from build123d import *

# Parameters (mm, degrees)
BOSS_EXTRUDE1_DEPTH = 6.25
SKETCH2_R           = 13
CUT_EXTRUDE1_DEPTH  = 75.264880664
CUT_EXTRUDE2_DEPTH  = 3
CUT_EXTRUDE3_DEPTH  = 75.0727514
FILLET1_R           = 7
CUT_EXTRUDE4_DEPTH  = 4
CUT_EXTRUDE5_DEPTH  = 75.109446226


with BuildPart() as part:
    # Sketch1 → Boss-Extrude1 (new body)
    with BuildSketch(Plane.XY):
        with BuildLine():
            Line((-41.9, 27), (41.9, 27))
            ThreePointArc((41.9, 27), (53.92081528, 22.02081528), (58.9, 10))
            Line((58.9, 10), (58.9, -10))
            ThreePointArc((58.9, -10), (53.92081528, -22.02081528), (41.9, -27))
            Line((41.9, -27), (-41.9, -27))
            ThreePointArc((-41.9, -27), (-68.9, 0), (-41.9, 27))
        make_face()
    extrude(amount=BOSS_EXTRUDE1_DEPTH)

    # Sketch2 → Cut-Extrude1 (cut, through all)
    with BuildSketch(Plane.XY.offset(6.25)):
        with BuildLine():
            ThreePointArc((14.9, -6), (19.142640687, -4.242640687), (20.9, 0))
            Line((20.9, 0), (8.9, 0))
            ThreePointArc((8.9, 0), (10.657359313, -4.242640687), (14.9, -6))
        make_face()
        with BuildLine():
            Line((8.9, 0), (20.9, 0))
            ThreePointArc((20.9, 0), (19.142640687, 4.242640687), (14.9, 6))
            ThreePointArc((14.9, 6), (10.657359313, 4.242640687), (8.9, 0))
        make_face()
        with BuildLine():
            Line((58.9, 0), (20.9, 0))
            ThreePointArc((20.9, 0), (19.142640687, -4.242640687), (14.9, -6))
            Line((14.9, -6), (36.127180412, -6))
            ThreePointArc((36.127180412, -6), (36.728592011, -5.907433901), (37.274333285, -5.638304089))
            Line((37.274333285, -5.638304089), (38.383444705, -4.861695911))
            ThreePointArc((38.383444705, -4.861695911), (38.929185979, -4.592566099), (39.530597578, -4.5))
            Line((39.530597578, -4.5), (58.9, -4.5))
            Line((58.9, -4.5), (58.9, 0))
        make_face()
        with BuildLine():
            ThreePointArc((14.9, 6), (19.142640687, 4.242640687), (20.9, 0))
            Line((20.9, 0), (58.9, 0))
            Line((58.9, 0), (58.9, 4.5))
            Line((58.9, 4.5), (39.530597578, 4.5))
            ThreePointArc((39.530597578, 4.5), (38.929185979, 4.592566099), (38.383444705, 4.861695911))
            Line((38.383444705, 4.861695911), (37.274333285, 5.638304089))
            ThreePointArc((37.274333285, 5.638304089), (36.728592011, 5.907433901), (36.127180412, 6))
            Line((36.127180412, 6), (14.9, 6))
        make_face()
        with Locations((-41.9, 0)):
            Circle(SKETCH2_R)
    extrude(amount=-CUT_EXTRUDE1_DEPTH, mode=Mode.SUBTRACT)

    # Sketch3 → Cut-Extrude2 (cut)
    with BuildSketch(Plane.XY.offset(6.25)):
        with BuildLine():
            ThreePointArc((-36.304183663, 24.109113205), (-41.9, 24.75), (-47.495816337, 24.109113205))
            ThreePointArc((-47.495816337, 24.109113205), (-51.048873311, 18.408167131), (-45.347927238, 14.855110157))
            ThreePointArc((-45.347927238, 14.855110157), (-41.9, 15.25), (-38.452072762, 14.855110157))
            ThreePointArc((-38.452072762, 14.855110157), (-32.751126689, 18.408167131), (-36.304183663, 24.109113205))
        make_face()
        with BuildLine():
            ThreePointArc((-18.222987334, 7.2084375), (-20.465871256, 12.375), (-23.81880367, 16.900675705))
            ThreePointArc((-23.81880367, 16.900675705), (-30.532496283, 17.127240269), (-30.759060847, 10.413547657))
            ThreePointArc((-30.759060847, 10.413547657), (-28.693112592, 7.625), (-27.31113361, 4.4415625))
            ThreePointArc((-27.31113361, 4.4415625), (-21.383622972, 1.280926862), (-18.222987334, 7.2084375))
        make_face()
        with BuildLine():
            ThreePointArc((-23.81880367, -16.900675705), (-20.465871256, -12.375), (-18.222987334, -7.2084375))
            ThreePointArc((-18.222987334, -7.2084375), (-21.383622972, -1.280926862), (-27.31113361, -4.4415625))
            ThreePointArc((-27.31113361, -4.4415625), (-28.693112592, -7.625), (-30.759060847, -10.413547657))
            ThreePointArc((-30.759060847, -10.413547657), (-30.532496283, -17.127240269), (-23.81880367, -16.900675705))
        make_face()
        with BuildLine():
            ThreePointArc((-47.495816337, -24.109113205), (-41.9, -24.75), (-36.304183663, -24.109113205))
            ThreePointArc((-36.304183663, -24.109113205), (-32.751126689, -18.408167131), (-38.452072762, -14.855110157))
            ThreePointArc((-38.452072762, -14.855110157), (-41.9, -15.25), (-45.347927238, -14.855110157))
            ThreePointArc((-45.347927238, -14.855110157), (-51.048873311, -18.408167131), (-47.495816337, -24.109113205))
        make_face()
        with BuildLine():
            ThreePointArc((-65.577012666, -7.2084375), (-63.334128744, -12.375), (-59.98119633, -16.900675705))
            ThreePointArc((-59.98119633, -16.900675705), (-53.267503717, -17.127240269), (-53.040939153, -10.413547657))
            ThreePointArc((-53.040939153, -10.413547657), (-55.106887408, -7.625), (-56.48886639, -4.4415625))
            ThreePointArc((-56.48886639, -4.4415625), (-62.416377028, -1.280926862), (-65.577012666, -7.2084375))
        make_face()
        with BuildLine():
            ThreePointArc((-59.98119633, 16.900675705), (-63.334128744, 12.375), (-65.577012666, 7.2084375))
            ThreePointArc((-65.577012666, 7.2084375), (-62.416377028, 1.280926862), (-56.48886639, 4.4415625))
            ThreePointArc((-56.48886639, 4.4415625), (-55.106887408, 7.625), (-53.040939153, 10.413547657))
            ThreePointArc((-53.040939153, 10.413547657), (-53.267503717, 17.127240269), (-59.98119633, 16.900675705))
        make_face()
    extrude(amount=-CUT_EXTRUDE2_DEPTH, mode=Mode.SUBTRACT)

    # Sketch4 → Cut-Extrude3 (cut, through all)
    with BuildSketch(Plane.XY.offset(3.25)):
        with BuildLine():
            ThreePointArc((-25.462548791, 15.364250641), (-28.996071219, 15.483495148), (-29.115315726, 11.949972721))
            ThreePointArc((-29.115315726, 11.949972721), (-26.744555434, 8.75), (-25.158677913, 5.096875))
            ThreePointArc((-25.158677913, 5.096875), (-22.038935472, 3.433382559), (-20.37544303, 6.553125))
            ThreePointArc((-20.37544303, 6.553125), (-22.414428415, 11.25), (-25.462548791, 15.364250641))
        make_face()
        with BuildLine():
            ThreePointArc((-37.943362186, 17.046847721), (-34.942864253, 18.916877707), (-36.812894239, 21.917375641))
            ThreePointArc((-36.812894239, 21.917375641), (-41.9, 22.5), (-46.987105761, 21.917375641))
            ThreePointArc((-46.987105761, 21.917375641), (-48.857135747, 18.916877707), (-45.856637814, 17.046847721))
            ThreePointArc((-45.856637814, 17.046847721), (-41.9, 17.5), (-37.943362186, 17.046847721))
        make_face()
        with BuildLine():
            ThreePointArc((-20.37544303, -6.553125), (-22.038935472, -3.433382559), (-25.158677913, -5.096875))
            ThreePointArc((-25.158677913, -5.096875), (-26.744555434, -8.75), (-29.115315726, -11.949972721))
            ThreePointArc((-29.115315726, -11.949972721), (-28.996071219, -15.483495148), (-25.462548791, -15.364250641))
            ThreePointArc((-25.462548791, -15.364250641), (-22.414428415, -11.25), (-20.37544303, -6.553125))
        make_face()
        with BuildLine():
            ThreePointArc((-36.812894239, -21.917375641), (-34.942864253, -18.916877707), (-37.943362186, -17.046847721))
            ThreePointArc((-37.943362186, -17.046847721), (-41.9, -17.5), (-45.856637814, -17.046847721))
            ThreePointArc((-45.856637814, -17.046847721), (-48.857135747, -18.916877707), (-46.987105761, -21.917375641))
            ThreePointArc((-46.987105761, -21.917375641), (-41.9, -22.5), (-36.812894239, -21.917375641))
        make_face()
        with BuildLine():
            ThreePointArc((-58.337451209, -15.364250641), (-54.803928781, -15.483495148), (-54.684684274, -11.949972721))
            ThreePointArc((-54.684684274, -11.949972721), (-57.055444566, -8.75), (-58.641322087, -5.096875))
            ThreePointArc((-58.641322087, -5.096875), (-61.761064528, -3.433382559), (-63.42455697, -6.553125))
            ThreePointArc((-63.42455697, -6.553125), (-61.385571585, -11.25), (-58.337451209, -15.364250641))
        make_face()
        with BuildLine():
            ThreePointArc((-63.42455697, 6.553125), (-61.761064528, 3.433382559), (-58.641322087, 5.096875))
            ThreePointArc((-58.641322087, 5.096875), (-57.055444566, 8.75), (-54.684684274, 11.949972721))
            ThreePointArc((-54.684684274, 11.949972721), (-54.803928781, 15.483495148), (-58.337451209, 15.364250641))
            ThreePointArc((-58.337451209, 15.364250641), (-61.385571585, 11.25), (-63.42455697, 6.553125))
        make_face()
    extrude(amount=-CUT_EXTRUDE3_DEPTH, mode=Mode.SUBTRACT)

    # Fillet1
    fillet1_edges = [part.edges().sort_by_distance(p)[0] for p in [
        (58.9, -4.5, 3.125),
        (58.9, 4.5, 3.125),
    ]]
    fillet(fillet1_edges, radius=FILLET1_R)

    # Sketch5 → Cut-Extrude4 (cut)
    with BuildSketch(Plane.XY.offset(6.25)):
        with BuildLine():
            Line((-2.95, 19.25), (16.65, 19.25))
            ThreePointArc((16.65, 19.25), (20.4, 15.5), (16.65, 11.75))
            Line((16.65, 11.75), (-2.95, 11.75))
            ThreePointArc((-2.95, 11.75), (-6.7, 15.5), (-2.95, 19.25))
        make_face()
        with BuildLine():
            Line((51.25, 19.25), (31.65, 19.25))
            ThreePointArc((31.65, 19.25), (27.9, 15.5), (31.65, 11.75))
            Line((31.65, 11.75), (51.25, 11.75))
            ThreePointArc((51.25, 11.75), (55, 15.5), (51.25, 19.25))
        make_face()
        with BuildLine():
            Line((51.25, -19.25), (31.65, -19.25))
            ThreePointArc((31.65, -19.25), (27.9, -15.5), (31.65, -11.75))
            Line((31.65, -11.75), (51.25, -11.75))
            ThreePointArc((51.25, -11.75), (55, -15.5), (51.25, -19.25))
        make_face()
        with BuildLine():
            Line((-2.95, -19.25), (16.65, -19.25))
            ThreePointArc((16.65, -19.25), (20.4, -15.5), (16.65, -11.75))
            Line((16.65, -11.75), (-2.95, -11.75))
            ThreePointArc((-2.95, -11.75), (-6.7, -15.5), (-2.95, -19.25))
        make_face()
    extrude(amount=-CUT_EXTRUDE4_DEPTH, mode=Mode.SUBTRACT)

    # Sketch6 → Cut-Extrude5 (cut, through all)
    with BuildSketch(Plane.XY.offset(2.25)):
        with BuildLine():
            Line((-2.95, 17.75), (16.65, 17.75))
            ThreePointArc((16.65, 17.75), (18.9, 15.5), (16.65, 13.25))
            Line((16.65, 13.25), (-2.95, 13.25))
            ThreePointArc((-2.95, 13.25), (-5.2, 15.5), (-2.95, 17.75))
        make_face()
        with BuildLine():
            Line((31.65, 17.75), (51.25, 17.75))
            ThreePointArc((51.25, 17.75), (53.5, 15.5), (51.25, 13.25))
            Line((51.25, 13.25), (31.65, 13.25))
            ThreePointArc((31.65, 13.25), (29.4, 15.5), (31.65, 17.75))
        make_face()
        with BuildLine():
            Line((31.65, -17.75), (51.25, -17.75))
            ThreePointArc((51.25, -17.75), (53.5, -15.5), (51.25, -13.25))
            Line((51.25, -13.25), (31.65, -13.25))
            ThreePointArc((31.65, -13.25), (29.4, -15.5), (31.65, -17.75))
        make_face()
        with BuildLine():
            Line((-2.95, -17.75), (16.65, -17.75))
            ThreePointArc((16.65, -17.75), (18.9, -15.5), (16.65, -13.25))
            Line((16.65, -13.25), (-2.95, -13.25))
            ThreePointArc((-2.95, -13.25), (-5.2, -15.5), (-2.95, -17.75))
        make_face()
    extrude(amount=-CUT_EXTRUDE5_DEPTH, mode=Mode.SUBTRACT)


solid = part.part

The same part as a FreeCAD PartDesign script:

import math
import FreeCAD as App
import Part
import Sketcher
from FreeCAD import Vector
Q = App.Units.Quantity


def edges_at(feature, points):
    """Names of the edges that pass closest to the given points."""
    edges = feature.Shape.Edges
    near = lambda p: min(range(len(edges)), key=lambda i: edges[i].distToShape(Part.Vertex(*p))[0])
    return sorted({f"Edge{near(p) + 1}" for p in points})

doc = App.newDocument("Part")
body = doc.addObject("PartDesign::Body", "Body")

# Sketch on XY plane
sketch1 = body.newObject("Sketcher::SketchObject", "Sketch")
sketch1.AttachmentSupport = (doc.getObject("XY_Plane"), [""])
sketch1.MapMode = "FlatFace"
sketch1.addGeometry([
    Part.LineSegment(Vector(42, 27, 0), Vector(-42, 27, 0)),  # 0
    Part.ArcOfCircle(Part.Circle(Vector(-42, 0, 0), Vector(0, 0, 1), 27), math.radians(90), math.radians(270)),  # 1
    Part.LineSegment(Vector(-42, -27, 0), Vector(42, -27, 0)),  # 2
    Part.ArcOfCircle(Part.Circle(Vector(42, -10, 0), Vector(0, 0, 1), 17), math.radians(-90), math.radians(0)),  # 3
    Part.LineSegment(Vector(59, -10, 0), Vector(59, 10, 0)),  # 4
    Part.ArcOfCircle(Part.Circle(Vector(42, 10, 0), Vector(0, 0, 1), 17), math.radians(0), math.radians(90)),  # 5
], False)
sketch1.addConstraint([
    Sketcher.Constraint("Tangent", 0, 2, 1, 1),
    Sketcher.Constraint("Tangent", 1, 2, 2, 1),
    Sketcher.Constraint("Tangent", 2, 2, 3, 1),
    Sketcher.Constraint("Tangent", 3, 2, 4, 1),
    Sketcher.Constraint("Tangent", 4, 2, 5, 1),
    Sketcher.Constraint("Tangent", 5, 2, 0, 1),
    Sketcher.Constraint("Horizontal", 0),
    Sketcher.Constraint("Horizontal", 2),
    Sketcher.Constraint("Vertical", 4),
    Sketcher.Constraint("Equal", 3, 5),
    Sketcher.Constraint("Symmetric", 0, 2, 2, 2, -1, 1),
    Sketcher.Constraint("Radius", 1, 27.0),
    Sketcher.Constraint("Radius", 3, 17.0),
    Sketcher.Constraint("DistanceX", 0, 2, 0, 1, 83.8),
])
pad1 = body.newObject("PartDesign::Pad", "Pad")
pad1.Profile = sketch1
pad1.Length = 6.25

# Sketch on XY plane
sketch2 = body.newObject("Sketcher::SketchObject", "Sketch001")
sketch2.AttachmentSupport = (doc.getObject("XY_Plane"), [""])
sketch2.MapMode = "FlatFace"
sketch2.AttachmentOffset = App.Placement(Vector(0, 0, 6.25), App.Rotation())
sketch2.addGeometry([
    Part.ArcOfCircle(Part.Circle(Vector(14.9, 0, 0), Vector(0, 0, 1), 6), math.radians(90), math.radians(180)),  # 0
    Part.ArcOfCircle(Part.Circle(Vector(14.9, 0, 0), Vector(0, 0, 1), 6), math.radians(180), math.radians(270)),  # 1
    Part.LineSegment(Vector(14.9, -6, 0), Vector(36.1, -6, 0)),  # 2
    Part.ArcOfCircle(Part.Circle(Vector(36.1, -4, 0), Vector(0, 0, 1), 2), math.radians(-90), math.radians(-55)),  # 3
    Part.LineSegment(Vector(37.3, -5.6, 0), Vector(38.4, -4.9, 0)),  # 4
    Part.ArcOfCircle(Part.Circle(Vector(39.5, -6.5, 0), Vector(0, 0, 1), 2), math.radians(90), math.radians(125)),  # 5
    Part.LineSegment(Vector(39.5, -4.5, 0), Vector(58.9, -4.5, 0)),  # 6
    Part.LineSegment(Vector(58.9, -4.5, 0), Vector(58.9, 4.5, 0)),  # 7
    Part.LineSegment(Vector(58.9, 4.5, 0), Vector(39.5, 4.5, 0)),  # 8
    Part.ArcOfCircle(Part.Circle(Vector(39.5, 6.5, 0), Vector(0, 0, 1), 2), math.radians(-125), math.radians(-90)),  # 9
    Part.LineSegment(Vector(38.4, 4.9, 0), Vector(37.3, 5.6, 0)),  # 10
    Part.ArcOfCircle(Part.Circle(Vector(36.1, 4, 0), Vector(0, 0, 1), 2), math.radians(55), math.radians(90)),  # 11
    Part.LineSegment(Vector(36.1, 6, 0), Vector(14.9, 6, 0)),  # 12
    Part.Circle(Vector(-41.9, 0, 0), Vector(0, 0, 1), 13),  # 13
], False)
sketch2.addConstraint([
    Sketcher.Constraint("Tangent", 0, 2, 1, 1),
    Sketcher.Constraint("Tangent", 1, 2, 2, 1),
    Sketcher.Constraint("Tangent", 2, 2, 3, 1),
    Sketcher.Constraint("Tangent", 3, 2, 4, 1),
    Sketcher.Constraint("Tangent", 4, 2, 5, 2),
    Sketcher.Constraint("Tangent", 5, 1, 6, 1),
    Sketcher.Constraint("Coincident", 6, 2, 7, 1),
    Sketcher.Constraint("Coincident", 7, 2, 8, 1),
    Sketcher.Constraint("Tangent", 8, 2, 9, 2),
    Sketcher.Constraint("Tangent", 9, 1, 10, 1),
    Sketcher.Constraint("Tangent", 10, 2, 11, 1),
    Sketcher.Constraint("Tangent", 11, 2, 12, 1),
    Sketcher.Constraint("Tangent", 12, 2, 0, 1),
    Sketcher.Constraint("Horizontal", 2),
    Sketcher.Constraint("Horizontal", 6),
    Sketcher.Constraint("Vertical", 7),
    Sketcher.Constraint("Horizontal", 8),
    Sketcher.Constraint("Horizontal", 12),
    Sketcher.Constraint("Equal", 0, 1),
    Sketcher.Constraint("Equal", 3, 5),
    Sketcher.Constraint("Equal", 5, 9),
    Sketcher.Constraint("Equal", 9, 11),
    Sketcher.Constraint("Symmetric", 5, 3, 9, 3, -1),
    Sketcher.Constraint("Symmetric", 3, 3, 11, 3, -1),
    Sketcher.Constraint("PointOnObject", 13, 3, -1),
    Sketcher.Constraint("PointOnObject", 0, 2, -1),
    Sketcher.Constraint("Diameter", 13, 26.0),
    Sketcher.Constraint("Radius", 0, 6.0),
    Sketcher.Constraint("Radius", 3, 2.0),
    Sketcher.Constraint("DistanceY", 7, 1, 7, 2, 9.0),
    Sketcher.Constraint("Angle", 4, Q("35 deg")),
    Sketcher.Constraint("DistanceX", -1, 1, 0, 3, 14.9),
    Sketcher.Constraint("DistanceX", 13, 3, -1, 1, 41.9),
    Sketcher.Constraint("DistanceX", -1, 1, 6, 2, 58.9),
    Sketcher.Constraint("DistanceX", 2, 1, 2, 2, 21.22718),
])
pocket1 = body.newObject("PartDesign::Pocket", "Pocket")
pocket1.Profile = sketch2
pocket1.Type = "ThroughAll"

# Sketch on XY plane
sketch3 = body.newObject("Sketcher::SketchObject", "Sketch002")
sketch3.AttachmentSupport = (doc.getObject("XY_Plane"), [""])
sketch3.MapMode = "FlatFace"
sketch3.AttachmentOffset = App.Placement(Vector(0, 0, 6.25), App.Rotation())
sketch3.addGeometry([
    Part.ArcOfCircle(Part.Circle(Vector(-41.9, 0, 0), Vector(0, 0, 1), 24.8), math.radians(77), math.radians(103)),  # 0
    Part.ArcOfCircle(Part.Circle(Vector(-46.4, 19.5, 0), Vector(0, 0, 1), 4.8), math.radians(103), math.radians(283)),  # 1
    Part.ArcOfCircle(Part.Circle(Vector(-41.9, 0, 0), Vector(0, 0, 1), 15.3), math.radians(77), math.radians(103)),  # 2
    Part.ArcOfCircle(Part.Circle(Vector(-37.4, 19.5, 0), Vector(0, 0, 1), 4.8), math.radians(-103), math.radians(77)),  # 3
    Part.ArcOfCircle(Part.Circle(Vector(-41.9, 0, 0), Vector(0, 0, 1), 24.7), math.radians(17), math.radians(43)),  # 4
    Part.ArcOfCircle(Part.Circle(Vector(-27.3, 13.7, 0), Vector(0, 0, 1), 4.8), math.radians(43), math.radians(223)),  # 5
    Part.ArcOfCircle(Part.Circle(Vector(-41.9, 0, 0), Vector(0, 0, 1), 15.2), math.radians(17), math.radians(43)),  # 6
    Part.ArcOfCircle(Part.Circle(Vector(-22.8, 5.8, 0), Vector(0, 0, 1), 4.8), math.radians(-163), math.radians(17)),  # 7
    Part.ArcOfCircle(Part.Circle(Vector(-41.9, 0, 0), Vector(0, 0, 1), 24.7), math.radians(-43), math.radians(-17)),  # 8
    Part.ArcOfCircle(Part.Circle(Vector(-22.8, -5.8, 0), Vector(0, 0, 1), 4.8), math.radians(-17), math.radians(163)),  # 9
    Part.ArcOfCircle(Part.Circle(Vector(-41.9, 0, 0), Vector(0, 0, 1), 15.2), math.radians(-43), math.radians(-17)),  # 10
    Part.ArcOfCircle(Part.Circle(Vector(-27.3, -13.7, 0), Vector(0, 0, 1), 4.8), math.radians(137), math.radians(317)),  # 11
    Part.ArcOfCircle(Part.Circle(Vector(-41.9, 0, 0), Vector(0, 0, 1), 24.8), math.radians(-103), math.radians(-77)),  # 12
    Part.ArcOfCircle(Part.Circle(Vector(-37.4, -19.5, 0), Vector(0, 0, 1), 4.8), math.radians(-77), math.radians(103)),  # 13
    Part.ArcOfCircle(Part.Circle(Vector(-41.9, 0, 0), Vector(0, 0, 1), 15.3), math.radians(-103), math.radians(-77)),  # 14
    Part.ArcOfCircle(Part.Circle(Vector(-46.4, -19.5, 0), Vector(0, 0, 1), 4.8), math.radians(77), math.radians(257)),  # 15
    Part.ArcOfCircle(Part.Circle(Vector(-41.9, 0, 0), Vector(0, 0, 1), 24.7), math.radians(-163), math.radians(-137)),  # 16
    Part.ArcOfCircle(Part.Circle(Vector(-56.5, -13.7, 0), Vector(0, 0, 1), 4.8), math.radians(-137), math.radians(43)),  # 17
    Part.ArcOfCircle(Part.Circle(Vector(-41.9, 0, 0), Vector(0, 0, 1), 15.2), math.radians(-163), math.radians(-137)),  # 18
    Part.ArcOfCircle(Part.Circle(Vector(-61, -5.8, 0), Vector(0, 0, 1), 4.8), math.radians(17), math.radians(197)),  # 19
    Part.ArcOfCircle(Part.Circle(Vector(-41.9, 0, 0), Vector(0, 0, 1), 24.7), math.radians(137), math.radians(163)),  # 20
    Part.ArcOfCircle(Part.Circle(Vector(-61, 5.8, 0), Vector(0, 0, 1), 4.8), math.radians(163), math.radians(343)),  # 21
    Part.ArcOfCircle(Part.Circle(Vector(-41.9, 0, 0), Vector(0, 0, 1), 15.2), math.radians(137), math.radians(163)),  # 22
    Part.ArcOfCircle(Part.Circle(Vector(-56.5, 13.7, 0), Vector(0, 0, 1), 4.8), math.radians(-43), math.radians(137)),  # 23
], False)
sketch3.addConstraint([
    Sketcher.Constraint("Tangent", 0, 2, 1, 1),
    Sketcher.Constraint("Tangent", 1, 2, 2, 2),
    Sketcher.Constraint("Tangent", 2, 1, 3, 1),
    Sketcher.Constraint("Tangent", 3, 2, 0, 1),
    Sketcher.Constraint("Tangent", 4, 2, 5, 1),
    Sketcher.Constraint("Tangent", 5, 2, 6, 2),
    Sketcher.Constraint("Tangent", 6, 1, 7, 1),
    Sketcher.Constraint("Tangent", 7, 2, 4, 1),
    Sketcher.Constraint("Tangent", 8, 2, 9, 1),
    Sketcher.Constraint("Tangent", 9, 2, 10, 2),
    Sketcher.Constraint("Tangent", 10, 1, 11, 1),
    Sketcher.Constraint("Tangent", 11, 2, 8, 1),
    Sketcher.Constraint("Tangent", 12, 2, 13, 1),
    Sketcher.Constraint("Tangent", 13, 2, 14, 2),
    Sketcher.Constraint("Tangent", 14, 1, 15, 1),
    Sketcher.Constraint("Tangent", 15, 2, 12, 1),
    Sketcher.Constraint("Tangent", 16, 2, 17, 1),
    Sketcher.Constraint("Tangent", 17, 2, 18, 2),
    Sketcher.Constraint("Tangent", 18, 1, 19, 1),
    Sketcher.Constraint("Tangent", 19, 2, 16, 1),
    Sketcher.Constraint("Tangent", 20, 2, 21, 1),
    Sketcher.Constraint("Tangent", 21, 2, 22, 2),
    Sketcher.Constraint("Tangent", 22, 1, 23, 1),
    Sketcher.Constraint("Tangent", 23, 2, 20, 1),
    Sketcher.Constraint("Coincident", 2, 3, 0, 3),
    Sketcher.Constraint("Coincident", 4, 3, 0, 3),
    Sketcher.Constraint("Coincident", 6, 3, 0, 3),
    Sketcher.Constraint("Coincident", 8, 3, 0, 3),
    Sketcher.Constraint("Coincident", 10, 3, 0, 3),
    Sketcher.Constraint("Coincident", 12, 3, 0, 3),
    Sketcher.Constraint("Coincident", 14, 3, 0, 3),
    Sketcher.Constraint("Coincident", 16, 3, 0, 3),
    Sketcher.Constraint("Coincident", 18, 3, 0, 3),
    Sketcher.Constraint("Coincident", 20, 3, 0, 3),
    Sketcher.Constraint("Coincident", 22, 3, 0, 3),
    Sketcher.Constraint("Equal", 0, 4),
    Sketcher.Constraint("Equal", 3, 5),
    Sketcher.Constraint("Equal", 4, 8),
    Sketcher.Constraint("Equal", 7, 9),
    Sketcher.Constraint("Equal", 8, 12),
    Sketcher.Constraint("Equal", 11, 13),
    Sketcher.Constraint("Equal", 12, 16),
    Sketcher.Constraint("Equal", 15, 17),
    Sketcher.Constraint("Equal", 16, 20),
    Sketcher.Constraint("Equal", 19, 21),
    Sketcher.Constraint("Symmetric", 7, 3, 9, 3, -1),
    Sketcher.Constraint("Horizontal", 1, 3, 3, 3),
    Sketcher.Constraint("Horizontal", 13, 3, 15, 3),
    Sketcher.Constraint("Horizontal", 11, 3, 17, 3),
    Sketcher.Constraint("Horizontal", 9, 3, 19, 3),
    Sketcher.Constraint("Horizontal", 7, 3, 21, 3),
    Sketcher.Constraint("Horizontal", 5, 3, 23, 3),
    Sketcher.Constraint("Vertical", 5, 3, 11, 3),
    Sketcher.Constraint("Vertical", 3, 3, 13, 3),
    Sketcher.Constraint("Radius", 0, 24.75),
    Sketcher.Constraint("Radius", 1, 4.75),
    Sketcher.Constraint("DistanceX", 0, 3, -1, 1, 41.9),
    Sketcher.Constraint("DistanceY", 9, 3, 7, 3, 11.65),
    Sketcher.Constraint("DistanceY", 5, 3, 3, 3, 5.825),
    Sketcher.Constraint("DistanceY", 1, 3, 0, 2, 4.627002),
])
pocket2 = body.newObject("PartDesign::Pocket", "Pocket001")
pocket2.Profile = sketch3
pocket2.Length = 3

# Sketch on XY plane
sketch4 = body.newObject("Sketcher::SketchObject", "Sketch003")
sketch4.AttachmentSupport = (doc.getObject("XY_Plane"), [""])
sketch4.MapMode = "FlatFace"
sketch4.AttachmentOffset = App.Placement(Vector(0, 0, 3.25), App.Rotation())
sketch4.addGeometry([
    Part.ArcOfCircle(Part.Circle(Vector(-27.3, 13.7, 0), Vector(0, 0, 1), 2.5), math.radians(43), math.radians(223)),  # 0
    Part.ArcOfCircle(Part.Circle(Vector(-41.9, 0, 0), Vector(0, 0, 1), 17.5), math.radians(17), math.radians(43)),  # 1
    Part.ArcOfCircle(Part.Circle(Vector(-22.8, 5.8, 0), Vector(0, 0, 1), 2.5), math.radians(-163), math.radians(17)),  # 2
    Part.ArcOfCircle(Part.Circle(Vector(-41.9, 0, 0), Vector(0, 0, 1), 22.5), math.radians(17), math.radians(43)),  # 3
    Part.ArcOfCircle(Part.Circle(Vector(-37.4, 19.5, 0), Vector(0, 0, 1), 2.5), math.radians(-103), math.radians(77)),  # 4
    Part.ArcOfCircle(Part.Circle(Vector(-41.9, 0, 0), Vector(0, 0, 1), 22.5), math.radians(77), math.radians(103)),  # 5
    Part.ArcOfCircle(Part.Circle(Vector(-46.4, 19.5, 0), Vector(0, 0, 1), 2.5), math.radians(103), math.radians(283)),  # 6
    Part.ArcOfCircle(Part.Circle(Vector(-41.9, 0, 0), Vector(0, 0, 1), 17.5), math.radians(77), math.radians(103)),  # 7
    Part.ArcOfCircle(Part.Circle(Vector(-22.8, -5.8, 0), Vector(0, 0, 1), 2.5), math.radians(-17), math.radians(163)),  # 8
    Part.ArcOfCircle(Part.Circle(Vector(-41.9, 0, 0), Vector(0, 0, 1), 17.5), math.radians(-43), math.radians(-17)),  # 9
    Part.ArcOfCircle(Part.Circle(Vector(-27.3, -13.7, 0), Vector(0, 0, 1), 2.5), math.radians(137), math.radians(317)),  # 10
    Part.ArcOfCircle(Part.Circle(Vector(-41.9, 0, 0), Vector(0, 0, 1), 22.5), math.radians(-43), math.radians(-17)),  # 11
    Part.ArcOfCircle(Part.Circle(Vector(-37.4, -19.5, 0), Vector(0, 0, 1), 2.5), math.radians(-77), math.radians(103)),  # 12
    Part.ArcOfCircle(Part.Circle(Vector(-41.9, 0, 0), Vector(0, 0, 1), 17.5), math.radians(-103), math.radians(-77)),  # 13
    Part.ArcOfCircle(Part.Circle(Vector(-46.4, -19.5, 0), Vector(0, 0, 1), 2.5), math.radians(77), math.radians(257)),  # 14
    Part.ArcOfCircle(Part.Circle(Vector(-41.9, 0, 0), Vector(0, 0, 1), 22.5), math.radians(-103), math.radians(-77)),  # 15
    Part.ArcOfCircle(Part.Circle(Vector(-56.5, -13.7, 0), Vector(0, 0, 1), 2.5), math.radians(-137), math.radians(43)),  # 16
    Part.ArcOfCircle(Part.Circle(Vector(-41.9, 0, 0), Vector(0, 0, 1), 17.5), math.radians(-163), math.radians(-137)),  # 17
    Part.ArcOfCircle(Part.Circle(Vector(-61, -5.8, 0), Vector(0, 0, 1), 2.5), math.radians(17), math.radians(197)),  # 18
    Part.ArcOfCircle(Part.Circle(Vector(-41.9, 0, 0), Vector(0, 0, 1), 22.5), math.radians(-163), math.radians(-137)),  # 19
    Part.ArcOfCircle(Part.Circle(Vector(-61, 5.8, 0), Vector(0, 0, 1), 2.5), math.radians(163), math.radians(343)),  # 20
    Part.ArcOfCircle(Part.Circle(Vector(-41.9, 0, 0), Vector(0, 0, 1), 17.5), math.radians(137), math.radians(163)),  # 21
    Part.ArcOfCircle(Part.Circle(Vector(-56.5, 13.7, 0), Vector(0, 0, 1), 2.5), math.radians(-43), math.radians(137)),  # 22
    Part.ArcOfCircle(Part.Circle(Vector(-41.9, 0, 0), Vector(0, 0, 1), 22.5), math.radians(137), math.radians(163)),  # 23
], False)
sketch4.addConstraint([
    Sketcher.Constraint("Tangent", 0, 2, 1, 2),
    Sketcher.Constraint("Tangent", 1, 1, 2, 1),
    Sketcher.Constraint("Tangent", 2, 2, 3, 1),
    Sketcher.Constraint("Tangent", 3, 2, 0, 1),
    Sketcher.Constraint("Tangent", 4, 2, 5, 1),
    Sketcher.Constraint("Tangent", 5, 2, 6, 1),
    Sketcher.Constraint("Tangent", 6, 2, 7, 2),
    Sketcher.Constraint("Tangent", 7, 1, 4, 1),
    Sketcher.Constraint("Tangent", 8, 2, 9, 2),
    Sketcher.Constraint("Tangent", 9, 1, 10, 1),
    Sketcher.Constraint("Tangent", 10, 2, 11, 1),
    Sketcher.Constraint("Tangent", 11, 2, 8, 1),
    Sketcher.Constraint("Tangent", 12, 2, 13, 2),
    Sketcher.Constraint("Tangent", 13, 1, 14, 1),
    Sketcher.Constraint("Tangent", 14, 2, 15, 1),
    Sketcher.Constraint("Tangent", 15, 2, 12, 1),
    Sketcher.Constraint("Tangent", 16, 2, 17, 2),
    Sketcher.Constraint("Tangent", 17, 1, 18, 1),
    Sketcher.Constraint("Tangent", 18, 2, 19, 1),
    Sketcher.Constraint("Tangent", 19, 2, 16, 1),
    Sketcher.Constraint("Tangent", 20, 2, 21, 2),
    Sketcher.Constraint("Tangent", 21, 1, 22, 1),
    Sketcher.Constraint("Tangent", 22, 2, 23, 1),
    Sketcher.Constraint("Tangent", 23, 2, 20, 1),
    Sketcher.Constraint("Coincident", 3, 3, 1, 3),
    Sketcher.Constraint("Coincident", 5, 3, 1, 3),
    Sketcher.Constraint("Coincident", 7, 3, 1, 3),
    Sketcher.Constraint("Coincident", 9, 3, 1, 3),
    Sketcher.Constraint("Coincident", 11, 3, 1, 3),
    Sketcher.Constraint("Coincident", 13, 3, 1, 3),
    Sketcher.Constraint("Coincident", 15, 3, 1, 3),
    Sketcher.Constraint("Coincident", 17, 3, 1, 3),
    Sketcher.Constraint("Coincident", 19, 3, 1, 3),
    Sketcher.Constraint("Coincident", 21, 3, 1, 3),
    Sketcher.Constraint("Coincident", 23, 3, 1, 3),
    Sketcher.Constraint("Equal", 2, 4),
    Sketcher.Constraint("Equal", 3, 5),
    Sketcher.Constraint("Equal", 6, 8),
    Sketcher.Constraint("Equal", 7, 9),
    Sketcher.Constraint("Equal", 10, 12),
    Sketcher.Constraint("Equal", 9, 13),
    Sketcher.Constraint("Equal", 14, 16),
    Sketcher.Constraint("Equal", 13, 17),
    Sketcher.Constraint("Equal", 18, 20),
    Sketcher.Constraint("Equal", 17, 21),
    Sketcher.Constraint("Symmetric", 2, 3, 8, 3, -1),
    Sketcher.Constraint("Horizontal", 4, 3, 6, 3),
    Sketcher.Constraint("Horizontal", 12, 3, 14, 3),
    Sketcher.Constraint("Horizontal", 10, 3, 16, 3),
    Sketcher.Constraint("Horizontal", 8, 3, 18, 3),
    Sketcher.Constraint("Horizontal", 2, 3, 20, 3),
    Sketcher.Constraint("Horizontal", 0, 3, 22, 3),
    Sketcher.Constraint("Vertical", 0, 3, 10, 3),
    Sketcher.Constraint("Vertical", 4, 3, 12, 3),
    Sketcher.Constraint("Radius", 0, 2.5),
    Sketcher.Constraint("Radius", 1, 17.5),
    Sketcher.Constraint("DistanceX", 1, 3, -1, 1, 41.9),
    Sketcher.Constraint("DistanceY", 8, 3, 2, 3, 11.65),
    Sketcher.Constraint("DistanceY", 0, 3, 4, 3, 5.825),
    Sketcher.Constraint("DistanceY", -1, 1, 0, 3, 13.657112),
])
pocket3 = body.newObject("PartDesign::Pocket", "Pocket002")
pocket3.Profile = sketch4
pocket3.Type = "ThroughAll"
doc.recompute()

fillet = body.newObject("PartDesign::Fillet", "Fillet")
fillet.Base = (pocket3, edges_at(pocket3, [(58.9, -4.5, 3.125), (58.9, 4.5, 3.125)]))
fillet.Radius = 7

# Sketch on XY plane
sketch5 = body.newObject("Sketcher::SketchObject", "Sketch004")
sketch5.AttachmentSupport = (doc.getObject("XY_Plane"), [""])
sketch5.MapMode = "FlatFace"
sketch5.AttachmentOffset = App.Placement(Vector(0, 0, 6.25), App.Rotation())
sketch5.addGeometry([
    Part.LineSegment(Vector(16.6, 19.2, 0), Vector(-3, 19.2, 0)),  # 0
    Part.ArcOfCircle(Part.Circle(Vector(-3, 15.5, 0), Vector(0, 0, 1), 3.8), math.radians(90), math.radians(270)),  # 1
    Part.LineSegment(Vector(-3, 11.8, 0), Vector(16.6, 11.8, 0)),  # 2
    Part.ArcOfCircle(Part.Circle(Vector(16.6, 15.5, 0), Vector(0, 0, 1), 3.8), math.radians(-90), math.radians(90)),  # 3
    Part.LineSegment(Vector(51.2, 19.2, 0), Vector(31.6, 19.2, 0)),  # 4
    Part.ArcOfCircle(Part.Circle(Vector(31.6, 15.5, 0), Vector(0, 0, 1), 3.8), math.radians(90), math.radians(270)),  # 5
    Part.LineSegment(Vector(31.6, 11.8, 0), Vector(51.2, 11.8, 0)),  # 6
    Part.ArcOfCircle(Part.Circle(Vector(51.2, 15.5, 0), Vector(0, 0, 1), 3.8), math.radians(-90), math.radians(90)),  # 7
    Part.LineSegment(Vector(31.6, -19.2, 0), Vector(51.2, -19.2, 0)),  # 8
    Part.ArcOfCircle(Part.Circle(Vector(51.2, -15.5, 0), Vector(0, 0, 1), 3.8), math.radians(-90), math.radians(90)),  # 9
    Part.LineSegment(Vector(51.2, -11.8, 0), Vector(31.6, -11.8, 0)),  # 10
    Part.ArcOfCircle(Part.Circle(Vector(31.6, -15.5, 0), Vector(0, 0, 1), 3.8), math.radians(90), math.radians(270)),  # 11
    Part.LineSegment(Vector(-3, -19.2, 0), Vector(16.6, -19.2, 0)),  # 12
    Part.ArcOfCircle(Part.Circle(Vector(16.6, -15.5, 0), Vector(0, 0, 1), 3.8), math.radians(-90), math.radians(90)),  # 13
    Part.LineSegment(Vector(16.6, -11.8, 0), Vector(-3, -11.8, 0)),  # 14
    Part.ArcOfCircle(Part.Circle(Vector(-3, -15.5, 0), Vector(0, 0, 1), 3.8), math.radians(90), math.radians(270)),  # 15
], False)
sketch5.addConstraint([
    Sketcher.Constraint("Tangent", 0, 2, 1, 1),
    Sketcher.Constraint("Tangent", 1, 2, 2, 1),
    Sketcher.Constraint("Tangent", 2, 2, 3, 1),
    Sketcher.Constraint("Tangent", 3, 2, 0, 1),
    Sketcher.Constraint("Tangent", 4, 2, 5, 1),
    Sketcher.Constraint("Tangent", 5, 2, 6, 1),
    Sketcher.Constraint("Tangent", 6, 2, 7, 1),
    Sketcher.Constraint("Tangent", 7, 2, 4, 1),
    Sketcher.Constraint("Tangent", 8, 2, 9, 1),
    Sketcher.Constraint("Tangent", 9, 2, 10, 1),
    Sketcher.Constraint("Tangent", 10, 2, 11, 1),
    Sketcher.Constraint("Tangent", 11, 2, 8, 1),
    Sketcher.Constraint("Tangent", 12, 2, 13, 1),
    Sketcher.Constraint("Tangent", 13, 2, 14, 1),
    Sketcher.Constraint("Tangent", 14, 2, 15, 1),
    Sketcher.Constraint("Tangent", 15, 2, 12, 1),
    Sketcher.Constraint("Horizontal", 0),
    Sketcher.Constraint("Horizontal", 2),
    Sketcher.Constraint("Horizontal", 4),
    Sketcher.Constraint("Horizontal", 6),
    Sketcher.Constraint("Horizontal", 8),
    Sketcher.Constraint("Horizontal", 10),
    Sketcher.Constraint("Horizontal", 12),
    Sketcher.Constraint("Horizontal", 14),
    Sketcher.Constraint("Equal", 3, 5),
    Sketcher.Constraint("Equal", 7, 9),
    Sketcher.Constraint("Equal", 11, 13),
    Sketcher.Constraint("Symmetric", 7, 3, 9, 3, -1),
    Sketcher.Constraint("Symmetric", 3, 3, 13, 3, -1),
    Sketcher.Constraint("Horizontal", 3, 3, 5, 3),
    Sketcher.Constraint("Vertical", 5, 3, 11, 3),
    Sketcher.Constraint("Vertical", 1, 3, 15, 3),
    Sketcher.Constraint("Equal", 2, 4),
    Sketcher.Constraint("Radius", 1, 3.75),
    Sketcher.Constraint("DistanceX", 0, 2, 0, 1, 19.6),
    Sketcher.Constraint("DistanceX", 3, 3, 5, 3, 15.0),
    Sketcher.Constraint("DistanceY", 9, 3, 7, 3, 31.0),
    Sketcher.Constraint("DistanceX", 1, 3, -1, 1, 2.95),
])
pocket4 = body.newObject("PartDesign::Pocket", "Pocket003")
pocket4.Profile = sketch5
pocket4.Length = 4

# Sketch on XY plane
sketch6 = body.newObject("Sketcher::SketchObject", "Sketch005")
sketch6.AttachmentSupport = (doc.getObject("XY_Plane"), [""])
sketch6.MapMode = "FlatFace"
sketch6.AttachmentOffset = App.Placement(Vector(0, 0, 2.25), App.Rotation())
sketch6.addGeometry([
    Part.LineSegment(Vector(16.6, 17.8, 0), Vector(-3, 17.8, 0)),  # 0
    Part.ArcOfCircle(Part.Circle(Vector(-3, 15.5, 0), Vector(0, 0, 1), 2.2), math.radians(90), math.radians(270)),  # 1
    Part.LineSegment(Vector(-3, 13.2, 0), Vector(16.6, 13.2, 0)),  # 2
    Part.ArcOfCircle(Part.Circle(Vector(16.6, 15.5, 0), Vector(0, 0, 1), 2.2), math.radians(-90), math.radians(90)),  # 3
    Part.LineSegment(Vector(51.2, 17.8, 0), Vector(31.6, 17.8, 0)),  # 4
    Part.ArcOfCircle(Part.Circle(Vector(31.6, 15.5, 0), Vector(0, 0, 1), 2.2), math.radians(90), math.radians(270)),  # 5
    Part.LineSegment(Vector(31.6, 13.2, 0), Vector(51.2, 13.2, 0)),  # 6
    Part.ArcOfCircle(Part.Circle(Vector(51.2, 15.5, 0), Vector(0, 0, 1), 2.2), math.radians(-90), math.radians(90)),  # 7
    Part.LineSegment(Vector(31.6, -17.8, 0), Vector(51.2, -17.8, 0)),  # 8
    Part.ArcOfCircle(Part.Circle(Vector(51.2, -15.5, 0), Vector(0, 0, 1), 2.2), math.radians(-90), math.radians(90)),  # 9
    Part.LineSegment(Vector(51.2, -13.2, 0), Vector(31.6, -13.2, 0)),  # 10
    Part.ArcOfCircle(Part.Circle(Vector(31.6, -15.5, 0), Vector(0, 0, 1), 2.2), math.radians(90), math.radians(270)),  # 11
    Part.LineSegment(Vector(-3, -17.8, 0), Vector(16.6, -17.8, 0)),  # 12
    Part.ArcOfCircle(Part.Circle(Vector(16.6, -15.5, 0), Vector(0, 0, 1), 2.2), math.radians(-90), math.radians(90)),  # 13
    Part.LineSegment(Vector(16.6, -13.2, 0), Vector(-3, -13.2, 0)),  # 14
    Part.ArcOfCircle(Part.Circle(Vector(-3, -15.5, 0), Vector(0, 0, 1), 2.2), math.radians(90), math.radians(270)),  # 15
], False)
sketch6.addConstraint([
    Sketcher.Constraint("Tangent", 0, 2, 1, 1),
    Sketcher.Constraint("Tangent", 1, 2, 2, 1),
    Sketcher.Constraint("Tangent", 2, 2, 3, 1),
    Sketcher.Constraint("Tangent", 3, 2, 0, 1),
    Sketcher.Constraint("Tangent", 4, 2, 5, 1),
    Sketcher.Constraint("Tangent", 5, 2, 6, 1),
    Sketcher.Constraint("Tangent", 6, 2, 7, 1),
    Sketcher.Constraint("Tangent", 7, 2, 4, 1),
    Sketcher.Constraint("Tangent", 8, 2, 9, 1),
    Sketcher.Constraint("Tangent", 9, 2, 10, 1),
    Sketcher.Constraint("Tangent", 10, 2, 11, 1),
    Sketcher.Constraint("Tangent", 11, 2, 8, 1),
    Sketcher.Constraint("Tangent", 12, 2, 13, 1),
    Sketcher.Constraint("Tangent", 13, 2, 14, 1),
    Sketcher.Constraint("Tangent", 14, 2, 15, 1),
    Sketcher.Constraint("Tangent", 15, 2, 12, 1),
    Sketcher.Constraint("Horizontal", 0),
    Sketcher.Constraint("Horizontal", 2),
    Sketcher.Constraint("Horizontal", 4),
    Sketcher.Constraint("Horizontal", 6),
    Sketcher.Constraint("Horizontal", 8),
    Sketcher.Constraint("Horizontal", 10),
    Sketcher.Constraint("Horizontal", 12),
    Sketcher.Constraint("Horizontal", 14),
    Sketcher.Constraint("Equal", 3, 5),
    Sketcher.Constraint("Equal", 7, 9),
    Sketcher.Constraint("Equal", 11, 13),
    Sketcher.Constraint("Symmetric", 7, 3, 9, 3, -1),
    Sketcher.Constraint("Symmetric", 3, 3, 13, 3, -1),
    Sketcher.Constraint("Horizontal", 3, 3, 5, 3),
    Sketcher.Constraint("Vertical", 5, 3, 11, 3),
    Sketcher.Constraint("Vertical", 1, 3, 15, 3),
    Sketcher.Constraint("Equal", 2, 4),
    Sketcher.Constraint("Radius", 1, 2.25),
    Sketcher.Constraint("DistanceX", 0, 2, 0, 1, 19.6),
    Sketcher.Constraint("DistanceX", 3, 3, 5, 3, 15.0),
    Sketcher.Constraint("DistanceY", 9, 3, 7, 3, 31.0),
    Sketcher.Constraint("DistanceX", 1, 3, -1, 1, 2.95),
])
pocket5 = body.newObject("PartDesign::Pocket", "Pocket004")
pocket5.Profile = sketch6
pocket5.Type = "ThroughAll"

doc.recompute()
